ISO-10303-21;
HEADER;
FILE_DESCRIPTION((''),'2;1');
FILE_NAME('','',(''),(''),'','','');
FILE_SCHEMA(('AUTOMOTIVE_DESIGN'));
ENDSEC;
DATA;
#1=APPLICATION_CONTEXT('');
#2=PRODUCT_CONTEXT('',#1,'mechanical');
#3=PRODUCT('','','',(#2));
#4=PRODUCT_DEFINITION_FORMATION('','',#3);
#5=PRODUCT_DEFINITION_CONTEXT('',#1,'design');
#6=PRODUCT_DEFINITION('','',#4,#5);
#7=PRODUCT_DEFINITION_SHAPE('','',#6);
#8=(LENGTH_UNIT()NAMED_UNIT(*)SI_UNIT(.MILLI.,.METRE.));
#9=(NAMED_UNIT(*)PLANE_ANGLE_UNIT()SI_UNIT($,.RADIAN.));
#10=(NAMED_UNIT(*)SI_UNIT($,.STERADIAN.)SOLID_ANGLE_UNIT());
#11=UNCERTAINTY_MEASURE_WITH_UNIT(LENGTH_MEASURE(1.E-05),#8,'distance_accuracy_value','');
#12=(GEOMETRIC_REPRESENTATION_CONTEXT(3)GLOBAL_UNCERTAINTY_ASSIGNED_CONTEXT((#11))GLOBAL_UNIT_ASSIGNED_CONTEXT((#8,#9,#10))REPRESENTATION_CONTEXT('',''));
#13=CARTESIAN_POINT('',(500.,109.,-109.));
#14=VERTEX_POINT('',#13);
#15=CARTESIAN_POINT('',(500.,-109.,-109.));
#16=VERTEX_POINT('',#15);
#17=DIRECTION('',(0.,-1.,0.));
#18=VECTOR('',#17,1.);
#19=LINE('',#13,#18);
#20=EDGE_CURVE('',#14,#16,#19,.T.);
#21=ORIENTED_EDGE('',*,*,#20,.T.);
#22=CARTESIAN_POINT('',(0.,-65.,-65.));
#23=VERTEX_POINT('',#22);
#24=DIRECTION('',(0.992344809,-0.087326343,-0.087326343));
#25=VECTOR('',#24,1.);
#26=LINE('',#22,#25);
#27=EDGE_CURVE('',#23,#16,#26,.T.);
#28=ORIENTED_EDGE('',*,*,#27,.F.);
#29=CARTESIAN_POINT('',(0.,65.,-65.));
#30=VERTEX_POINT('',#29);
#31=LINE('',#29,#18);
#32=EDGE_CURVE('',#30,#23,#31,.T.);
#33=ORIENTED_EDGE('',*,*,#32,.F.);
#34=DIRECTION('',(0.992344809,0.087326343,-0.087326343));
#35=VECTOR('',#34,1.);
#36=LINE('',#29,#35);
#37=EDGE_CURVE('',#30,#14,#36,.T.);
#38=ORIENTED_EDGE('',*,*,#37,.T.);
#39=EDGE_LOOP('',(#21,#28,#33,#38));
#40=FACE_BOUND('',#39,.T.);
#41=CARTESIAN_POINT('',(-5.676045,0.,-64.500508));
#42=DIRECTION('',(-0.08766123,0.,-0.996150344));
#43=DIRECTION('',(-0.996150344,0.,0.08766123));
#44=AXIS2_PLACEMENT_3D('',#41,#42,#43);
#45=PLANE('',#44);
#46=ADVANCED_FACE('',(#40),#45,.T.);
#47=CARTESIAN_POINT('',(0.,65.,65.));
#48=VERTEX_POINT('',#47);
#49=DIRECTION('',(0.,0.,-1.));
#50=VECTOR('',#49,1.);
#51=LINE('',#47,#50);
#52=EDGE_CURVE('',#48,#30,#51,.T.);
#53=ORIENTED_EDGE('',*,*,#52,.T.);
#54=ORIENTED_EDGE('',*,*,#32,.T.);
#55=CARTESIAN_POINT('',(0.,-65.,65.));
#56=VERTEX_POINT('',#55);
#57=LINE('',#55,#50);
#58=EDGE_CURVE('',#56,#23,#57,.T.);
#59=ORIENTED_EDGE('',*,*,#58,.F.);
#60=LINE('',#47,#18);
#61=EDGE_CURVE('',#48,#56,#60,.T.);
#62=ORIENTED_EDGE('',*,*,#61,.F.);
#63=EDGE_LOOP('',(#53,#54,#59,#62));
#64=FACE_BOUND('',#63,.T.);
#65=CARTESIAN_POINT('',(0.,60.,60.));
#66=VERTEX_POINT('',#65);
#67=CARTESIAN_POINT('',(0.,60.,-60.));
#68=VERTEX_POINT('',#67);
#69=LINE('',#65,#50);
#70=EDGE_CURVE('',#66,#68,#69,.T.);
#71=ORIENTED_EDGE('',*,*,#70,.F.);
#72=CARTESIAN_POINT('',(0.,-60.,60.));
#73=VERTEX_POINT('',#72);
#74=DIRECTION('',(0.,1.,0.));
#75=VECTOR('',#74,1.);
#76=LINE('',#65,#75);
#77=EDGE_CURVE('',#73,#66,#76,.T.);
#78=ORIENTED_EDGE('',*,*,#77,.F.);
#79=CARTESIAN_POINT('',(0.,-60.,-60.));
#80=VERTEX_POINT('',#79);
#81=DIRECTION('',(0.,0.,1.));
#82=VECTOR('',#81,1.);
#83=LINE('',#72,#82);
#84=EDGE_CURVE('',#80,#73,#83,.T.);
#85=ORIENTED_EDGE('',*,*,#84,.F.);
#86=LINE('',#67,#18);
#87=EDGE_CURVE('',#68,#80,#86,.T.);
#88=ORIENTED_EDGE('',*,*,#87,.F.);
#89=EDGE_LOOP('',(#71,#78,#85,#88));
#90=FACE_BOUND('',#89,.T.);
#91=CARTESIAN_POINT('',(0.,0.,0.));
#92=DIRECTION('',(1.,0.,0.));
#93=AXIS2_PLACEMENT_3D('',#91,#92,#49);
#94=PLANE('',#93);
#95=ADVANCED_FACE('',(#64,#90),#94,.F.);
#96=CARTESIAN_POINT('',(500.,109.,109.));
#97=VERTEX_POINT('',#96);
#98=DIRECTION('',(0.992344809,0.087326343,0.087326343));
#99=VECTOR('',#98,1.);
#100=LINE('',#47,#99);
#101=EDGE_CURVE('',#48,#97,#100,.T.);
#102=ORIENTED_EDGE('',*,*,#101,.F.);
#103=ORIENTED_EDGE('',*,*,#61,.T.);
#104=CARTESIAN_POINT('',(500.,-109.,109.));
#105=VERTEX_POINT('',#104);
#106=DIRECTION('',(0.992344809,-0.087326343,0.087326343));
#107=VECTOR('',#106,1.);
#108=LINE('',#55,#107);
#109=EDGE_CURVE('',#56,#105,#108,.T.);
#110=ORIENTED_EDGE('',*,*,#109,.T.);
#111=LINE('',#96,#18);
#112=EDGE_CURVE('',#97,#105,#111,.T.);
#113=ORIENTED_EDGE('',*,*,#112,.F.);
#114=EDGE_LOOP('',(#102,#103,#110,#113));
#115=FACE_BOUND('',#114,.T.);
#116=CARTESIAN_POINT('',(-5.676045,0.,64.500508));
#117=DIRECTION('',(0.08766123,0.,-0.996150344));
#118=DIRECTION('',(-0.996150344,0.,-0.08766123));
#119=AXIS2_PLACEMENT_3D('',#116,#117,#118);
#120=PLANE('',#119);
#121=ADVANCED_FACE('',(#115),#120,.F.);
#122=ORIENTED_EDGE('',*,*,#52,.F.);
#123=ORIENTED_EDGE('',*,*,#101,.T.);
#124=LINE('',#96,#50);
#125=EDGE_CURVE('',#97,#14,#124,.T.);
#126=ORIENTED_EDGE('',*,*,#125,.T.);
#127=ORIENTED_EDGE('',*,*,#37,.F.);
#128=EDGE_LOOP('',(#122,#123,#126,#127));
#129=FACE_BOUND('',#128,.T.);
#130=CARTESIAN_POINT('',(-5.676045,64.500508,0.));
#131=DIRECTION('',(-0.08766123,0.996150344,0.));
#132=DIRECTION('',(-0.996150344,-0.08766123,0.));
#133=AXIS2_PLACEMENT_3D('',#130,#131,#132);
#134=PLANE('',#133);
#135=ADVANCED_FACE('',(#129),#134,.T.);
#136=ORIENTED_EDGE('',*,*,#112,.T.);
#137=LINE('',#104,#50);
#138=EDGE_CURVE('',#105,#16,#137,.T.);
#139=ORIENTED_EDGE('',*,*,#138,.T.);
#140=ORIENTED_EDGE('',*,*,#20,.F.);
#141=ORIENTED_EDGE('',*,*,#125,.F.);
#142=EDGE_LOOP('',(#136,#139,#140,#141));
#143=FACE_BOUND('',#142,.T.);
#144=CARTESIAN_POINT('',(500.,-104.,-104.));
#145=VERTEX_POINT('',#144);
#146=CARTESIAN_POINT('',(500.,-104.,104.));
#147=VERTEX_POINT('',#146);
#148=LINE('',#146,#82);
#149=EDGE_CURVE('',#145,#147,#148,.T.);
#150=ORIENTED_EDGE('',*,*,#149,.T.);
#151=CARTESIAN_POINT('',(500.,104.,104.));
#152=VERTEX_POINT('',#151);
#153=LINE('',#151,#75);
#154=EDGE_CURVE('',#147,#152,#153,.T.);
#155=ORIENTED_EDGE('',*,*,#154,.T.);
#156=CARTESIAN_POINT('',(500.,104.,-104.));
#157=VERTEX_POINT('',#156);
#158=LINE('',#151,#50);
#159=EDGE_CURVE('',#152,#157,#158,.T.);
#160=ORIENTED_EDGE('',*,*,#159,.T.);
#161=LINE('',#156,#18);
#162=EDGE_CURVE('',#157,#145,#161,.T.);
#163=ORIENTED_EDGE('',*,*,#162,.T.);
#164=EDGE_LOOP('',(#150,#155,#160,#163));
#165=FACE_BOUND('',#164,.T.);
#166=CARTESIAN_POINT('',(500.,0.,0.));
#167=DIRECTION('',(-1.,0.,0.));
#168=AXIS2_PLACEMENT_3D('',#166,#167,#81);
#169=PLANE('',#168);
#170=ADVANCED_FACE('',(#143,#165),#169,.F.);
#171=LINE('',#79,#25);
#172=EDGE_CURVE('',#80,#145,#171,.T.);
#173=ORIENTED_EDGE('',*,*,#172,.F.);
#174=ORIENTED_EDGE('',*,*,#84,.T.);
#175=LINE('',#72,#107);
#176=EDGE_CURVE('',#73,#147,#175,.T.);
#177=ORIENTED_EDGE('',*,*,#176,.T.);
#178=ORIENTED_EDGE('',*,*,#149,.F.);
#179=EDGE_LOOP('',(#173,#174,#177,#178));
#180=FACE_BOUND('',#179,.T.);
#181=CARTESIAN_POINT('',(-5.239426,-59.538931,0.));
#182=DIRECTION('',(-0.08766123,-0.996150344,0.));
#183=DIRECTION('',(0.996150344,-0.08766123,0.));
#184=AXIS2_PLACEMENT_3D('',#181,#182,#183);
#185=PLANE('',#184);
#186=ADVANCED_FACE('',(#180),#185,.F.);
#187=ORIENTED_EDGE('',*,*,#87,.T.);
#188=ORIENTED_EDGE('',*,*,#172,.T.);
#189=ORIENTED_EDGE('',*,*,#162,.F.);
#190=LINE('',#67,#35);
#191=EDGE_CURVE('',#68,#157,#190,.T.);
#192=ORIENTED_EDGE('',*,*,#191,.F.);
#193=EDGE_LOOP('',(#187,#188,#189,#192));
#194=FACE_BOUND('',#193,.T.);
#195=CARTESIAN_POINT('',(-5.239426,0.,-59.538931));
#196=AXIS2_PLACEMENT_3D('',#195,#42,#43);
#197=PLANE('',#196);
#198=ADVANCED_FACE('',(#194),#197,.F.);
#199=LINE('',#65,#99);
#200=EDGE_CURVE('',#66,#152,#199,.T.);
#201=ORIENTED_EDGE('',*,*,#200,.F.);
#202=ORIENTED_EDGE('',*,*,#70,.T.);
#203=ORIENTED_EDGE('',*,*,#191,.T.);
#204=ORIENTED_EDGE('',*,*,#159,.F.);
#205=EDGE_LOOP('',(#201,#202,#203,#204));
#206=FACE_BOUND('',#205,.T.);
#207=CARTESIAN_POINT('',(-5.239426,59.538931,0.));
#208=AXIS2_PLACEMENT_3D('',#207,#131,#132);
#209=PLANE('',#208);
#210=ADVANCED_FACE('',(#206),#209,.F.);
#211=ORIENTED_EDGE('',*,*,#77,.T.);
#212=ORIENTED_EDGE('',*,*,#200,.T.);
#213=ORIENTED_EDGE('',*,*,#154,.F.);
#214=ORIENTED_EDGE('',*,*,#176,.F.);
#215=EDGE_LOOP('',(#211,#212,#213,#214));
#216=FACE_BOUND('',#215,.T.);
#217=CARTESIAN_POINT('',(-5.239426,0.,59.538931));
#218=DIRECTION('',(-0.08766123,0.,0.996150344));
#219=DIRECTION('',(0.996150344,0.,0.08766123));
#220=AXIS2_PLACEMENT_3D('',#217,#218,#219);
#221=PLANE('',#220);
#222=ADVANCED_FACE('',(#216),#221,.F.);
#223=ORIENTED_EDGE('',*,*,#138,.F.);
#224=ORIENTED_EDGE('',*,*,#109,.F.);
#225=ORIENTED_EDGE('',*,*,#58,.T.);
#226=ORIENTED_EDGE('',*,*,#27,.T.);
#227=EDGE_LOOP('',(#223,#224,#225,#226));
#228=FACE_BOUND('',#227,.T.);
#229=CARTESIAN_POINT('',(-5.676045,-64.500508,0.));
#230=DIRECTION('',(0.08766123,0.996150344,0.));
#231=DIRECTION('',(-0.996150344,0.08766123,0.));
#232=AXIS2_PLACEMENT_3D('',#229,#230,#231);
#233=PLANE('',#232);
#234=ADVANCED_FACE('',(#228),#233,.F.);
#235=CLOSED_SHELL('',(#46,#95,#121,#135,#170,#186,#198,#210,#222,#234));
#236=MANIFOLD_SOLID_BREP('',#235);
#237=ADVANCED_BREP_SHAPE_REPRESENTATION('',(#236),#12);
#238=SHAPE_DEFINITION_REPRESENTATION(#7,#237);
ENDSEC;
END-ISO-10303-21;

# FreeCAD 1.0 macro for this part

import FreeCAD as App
import Part
import Sketcher

V = App.Vector
Q = App.Units.Quantity


def add_polygon(sketch, points):
    """Adds a closed chain of lines whose ends are joined by coincident constraints."""
    first, n = sketch.GeometryCount, len(points)
    for a, b in zip(points, points[1:] + points[:1]):
        sketch.addGeometry(Part.LineSegment(App.Vector(*a, 0), App.Vector(*b, 0)), False)
    for i in range(n):
        sketch.addConstraint(Sketcher.Constraint("Coincident", first + i, 2, first + (i + 1) % n, 1))

doc = App.newDocument("Part")
body = doc.addObject("PartDesign::Body", "Body")

sketch1 = doc.addObject("Sketcher::SketchObject", "Sketch")
body.addObject(sketch1)
sketch1.AttachmentSupport = (doc.YZ_Plane, [""])
sketch1.MapMode = "FlatFace"
add_polygon(sketch1, [(65, -65), (65, 65), (-65, 65), (-65, -65)])
sketch1.addConstraint(Sketcher.Constraint("Vertical", 0))
sketch1.addConstraint(Sketcher.Constraint("Horizontal", 1))
sketch1.addConstraint(Sketcher.Constraint("Vertical", 2))
sketch1.addConstraint(Sketcher.Constraint("Horizontal", 3))
sketch1.addConstraint(Sketcher.Constraint("Symmetric", 0, 2, 2, 2, -1, 1))
sketch1.addConstraint(Sketcher.Constraint("Equal", 3, 0))
sketch1.addConstraint(Sketcher.Constraint("DistanceX", 1, 2, 1, 1, Q("130 mm")))

sketch2 = doc.addObject("Sketcher::SketchObject", "Sketch001")
body.addObject(sketch2)
sketch2.AttachmentSupport = (doc.YZ_Plane, [""])
sketch2.MapMode = "FlatFace"
sketch2.AttachmentOffset = App.Placement(V(0, 0, 500), App.Rotation())
add_polygon(sketch2, [(109, -109), (109, 109), (-109, 109), (-109, -109)])
sketch2.addConstraint(Sketcher.Constraint("Vertical", 0))
sketch2.addConstraint(Sketcher.Constraint("Horizontal", 1))
sketch2.addConstraint(Sketcher.Constraint("Vertical", 2))
sketch2.addConstraint(Sketcher.Constraint("Horizontal", 3))
sketch2.addConstraint(Sketcher.Constraint("Symmetric", 0, 2, 2, 2, -1, 1))
sketch2.addConstraint(Sketcher.Constraint("Equal", 3, 0))
sketch2.addConstraint(Sketcher.Constraint("DistanceX", 1, 2, 1, 1, Q("218 mm")))

additiveloft = doc.addObject("PartDesign::AdditiveLoft", "AdditiveLoft")
body.addObject(additiveloft)
additiveloft.Profile = sketch1
additiveloft.Sections = [sketch2]

sketch3 = doc.addObject("Sketcher::SketchObject", "Sketch002")
body.addObject(sketch3)
sketch3.AttachmentSupport = (doc.YZ_Plane, [""])
sketch3.MapMode = "FlatFace"
add_polygon(sketch3, [(60, -60), (60, 60), (-60, 60), (-60, -60)])
sketch3.addConstraint(Sketcher.Constraint("Vertical", 0))
sketch3.addConstraint(Sketcher.Constraint("Horizontal", 1))
sketch3.addConstraint(Sketcher.Constraint("Vertical", 2))
sketch3.addConstraint(Sketcher.Constraint("Horizontal", 3))
sketch3.addConstraint(Sketcher.Constraint("Symmetric", 0, 2, 2, 2, -1, 1))
sketch3.addConstraint(Sketcher.Constraint("Equal", 3, 0))
sketch3.addConstraint(Sketcher.Constraint("DistanceX", 1, 2, 1, 1, Q("120 mm")))

sketch4 = doc.addObject("Sketcher::SketchObject", "Sketch003")
body.addObject(sketch4)
sketch4.AttachmentSupport = (doc.YZ_Plane, [""])
sketch4.MapMode = "FlatFace"
sketch4.AttachmentOffset = App.Placement(V(0, 0, 500), App.Rotation())
add_polygon(sketch4, [(104, -104), (104, 104), (-104, 104), (-104, -104)])
sketch4.addConstraint(Sketcher.Constraint("Vertical", 0))
sketch4.addConstraint(Sketcher.Constraint("Horizontal", 1))
sketch4.addConstraint(Sketcher.Constraint("Vertical", 2))
sketch4.addConstraint(Sketcher.Constraint("Horizontal", 3))
sketch4.addConstraint(Sketcher.Constraint("Symmetric", 0, 2, 2, 2, -1, 1))
sketch4.addConstraint(Sketcher.Constraint("Equal", 3, 0))
sketch4.addConstraint(Sketcher.Constraint("DistanceX", 1, 2, 1, 1, Q("208 mm")))

subtractiveloft = doc.addObject("PartDesign::SubtractiveLoft", "SubtractiveLoft")
body.addObject(subtractiveloft)
subtractiveloft.Profile = sketch3
subtractiveloft.Sections = [sketch4]

doc.recompute()
